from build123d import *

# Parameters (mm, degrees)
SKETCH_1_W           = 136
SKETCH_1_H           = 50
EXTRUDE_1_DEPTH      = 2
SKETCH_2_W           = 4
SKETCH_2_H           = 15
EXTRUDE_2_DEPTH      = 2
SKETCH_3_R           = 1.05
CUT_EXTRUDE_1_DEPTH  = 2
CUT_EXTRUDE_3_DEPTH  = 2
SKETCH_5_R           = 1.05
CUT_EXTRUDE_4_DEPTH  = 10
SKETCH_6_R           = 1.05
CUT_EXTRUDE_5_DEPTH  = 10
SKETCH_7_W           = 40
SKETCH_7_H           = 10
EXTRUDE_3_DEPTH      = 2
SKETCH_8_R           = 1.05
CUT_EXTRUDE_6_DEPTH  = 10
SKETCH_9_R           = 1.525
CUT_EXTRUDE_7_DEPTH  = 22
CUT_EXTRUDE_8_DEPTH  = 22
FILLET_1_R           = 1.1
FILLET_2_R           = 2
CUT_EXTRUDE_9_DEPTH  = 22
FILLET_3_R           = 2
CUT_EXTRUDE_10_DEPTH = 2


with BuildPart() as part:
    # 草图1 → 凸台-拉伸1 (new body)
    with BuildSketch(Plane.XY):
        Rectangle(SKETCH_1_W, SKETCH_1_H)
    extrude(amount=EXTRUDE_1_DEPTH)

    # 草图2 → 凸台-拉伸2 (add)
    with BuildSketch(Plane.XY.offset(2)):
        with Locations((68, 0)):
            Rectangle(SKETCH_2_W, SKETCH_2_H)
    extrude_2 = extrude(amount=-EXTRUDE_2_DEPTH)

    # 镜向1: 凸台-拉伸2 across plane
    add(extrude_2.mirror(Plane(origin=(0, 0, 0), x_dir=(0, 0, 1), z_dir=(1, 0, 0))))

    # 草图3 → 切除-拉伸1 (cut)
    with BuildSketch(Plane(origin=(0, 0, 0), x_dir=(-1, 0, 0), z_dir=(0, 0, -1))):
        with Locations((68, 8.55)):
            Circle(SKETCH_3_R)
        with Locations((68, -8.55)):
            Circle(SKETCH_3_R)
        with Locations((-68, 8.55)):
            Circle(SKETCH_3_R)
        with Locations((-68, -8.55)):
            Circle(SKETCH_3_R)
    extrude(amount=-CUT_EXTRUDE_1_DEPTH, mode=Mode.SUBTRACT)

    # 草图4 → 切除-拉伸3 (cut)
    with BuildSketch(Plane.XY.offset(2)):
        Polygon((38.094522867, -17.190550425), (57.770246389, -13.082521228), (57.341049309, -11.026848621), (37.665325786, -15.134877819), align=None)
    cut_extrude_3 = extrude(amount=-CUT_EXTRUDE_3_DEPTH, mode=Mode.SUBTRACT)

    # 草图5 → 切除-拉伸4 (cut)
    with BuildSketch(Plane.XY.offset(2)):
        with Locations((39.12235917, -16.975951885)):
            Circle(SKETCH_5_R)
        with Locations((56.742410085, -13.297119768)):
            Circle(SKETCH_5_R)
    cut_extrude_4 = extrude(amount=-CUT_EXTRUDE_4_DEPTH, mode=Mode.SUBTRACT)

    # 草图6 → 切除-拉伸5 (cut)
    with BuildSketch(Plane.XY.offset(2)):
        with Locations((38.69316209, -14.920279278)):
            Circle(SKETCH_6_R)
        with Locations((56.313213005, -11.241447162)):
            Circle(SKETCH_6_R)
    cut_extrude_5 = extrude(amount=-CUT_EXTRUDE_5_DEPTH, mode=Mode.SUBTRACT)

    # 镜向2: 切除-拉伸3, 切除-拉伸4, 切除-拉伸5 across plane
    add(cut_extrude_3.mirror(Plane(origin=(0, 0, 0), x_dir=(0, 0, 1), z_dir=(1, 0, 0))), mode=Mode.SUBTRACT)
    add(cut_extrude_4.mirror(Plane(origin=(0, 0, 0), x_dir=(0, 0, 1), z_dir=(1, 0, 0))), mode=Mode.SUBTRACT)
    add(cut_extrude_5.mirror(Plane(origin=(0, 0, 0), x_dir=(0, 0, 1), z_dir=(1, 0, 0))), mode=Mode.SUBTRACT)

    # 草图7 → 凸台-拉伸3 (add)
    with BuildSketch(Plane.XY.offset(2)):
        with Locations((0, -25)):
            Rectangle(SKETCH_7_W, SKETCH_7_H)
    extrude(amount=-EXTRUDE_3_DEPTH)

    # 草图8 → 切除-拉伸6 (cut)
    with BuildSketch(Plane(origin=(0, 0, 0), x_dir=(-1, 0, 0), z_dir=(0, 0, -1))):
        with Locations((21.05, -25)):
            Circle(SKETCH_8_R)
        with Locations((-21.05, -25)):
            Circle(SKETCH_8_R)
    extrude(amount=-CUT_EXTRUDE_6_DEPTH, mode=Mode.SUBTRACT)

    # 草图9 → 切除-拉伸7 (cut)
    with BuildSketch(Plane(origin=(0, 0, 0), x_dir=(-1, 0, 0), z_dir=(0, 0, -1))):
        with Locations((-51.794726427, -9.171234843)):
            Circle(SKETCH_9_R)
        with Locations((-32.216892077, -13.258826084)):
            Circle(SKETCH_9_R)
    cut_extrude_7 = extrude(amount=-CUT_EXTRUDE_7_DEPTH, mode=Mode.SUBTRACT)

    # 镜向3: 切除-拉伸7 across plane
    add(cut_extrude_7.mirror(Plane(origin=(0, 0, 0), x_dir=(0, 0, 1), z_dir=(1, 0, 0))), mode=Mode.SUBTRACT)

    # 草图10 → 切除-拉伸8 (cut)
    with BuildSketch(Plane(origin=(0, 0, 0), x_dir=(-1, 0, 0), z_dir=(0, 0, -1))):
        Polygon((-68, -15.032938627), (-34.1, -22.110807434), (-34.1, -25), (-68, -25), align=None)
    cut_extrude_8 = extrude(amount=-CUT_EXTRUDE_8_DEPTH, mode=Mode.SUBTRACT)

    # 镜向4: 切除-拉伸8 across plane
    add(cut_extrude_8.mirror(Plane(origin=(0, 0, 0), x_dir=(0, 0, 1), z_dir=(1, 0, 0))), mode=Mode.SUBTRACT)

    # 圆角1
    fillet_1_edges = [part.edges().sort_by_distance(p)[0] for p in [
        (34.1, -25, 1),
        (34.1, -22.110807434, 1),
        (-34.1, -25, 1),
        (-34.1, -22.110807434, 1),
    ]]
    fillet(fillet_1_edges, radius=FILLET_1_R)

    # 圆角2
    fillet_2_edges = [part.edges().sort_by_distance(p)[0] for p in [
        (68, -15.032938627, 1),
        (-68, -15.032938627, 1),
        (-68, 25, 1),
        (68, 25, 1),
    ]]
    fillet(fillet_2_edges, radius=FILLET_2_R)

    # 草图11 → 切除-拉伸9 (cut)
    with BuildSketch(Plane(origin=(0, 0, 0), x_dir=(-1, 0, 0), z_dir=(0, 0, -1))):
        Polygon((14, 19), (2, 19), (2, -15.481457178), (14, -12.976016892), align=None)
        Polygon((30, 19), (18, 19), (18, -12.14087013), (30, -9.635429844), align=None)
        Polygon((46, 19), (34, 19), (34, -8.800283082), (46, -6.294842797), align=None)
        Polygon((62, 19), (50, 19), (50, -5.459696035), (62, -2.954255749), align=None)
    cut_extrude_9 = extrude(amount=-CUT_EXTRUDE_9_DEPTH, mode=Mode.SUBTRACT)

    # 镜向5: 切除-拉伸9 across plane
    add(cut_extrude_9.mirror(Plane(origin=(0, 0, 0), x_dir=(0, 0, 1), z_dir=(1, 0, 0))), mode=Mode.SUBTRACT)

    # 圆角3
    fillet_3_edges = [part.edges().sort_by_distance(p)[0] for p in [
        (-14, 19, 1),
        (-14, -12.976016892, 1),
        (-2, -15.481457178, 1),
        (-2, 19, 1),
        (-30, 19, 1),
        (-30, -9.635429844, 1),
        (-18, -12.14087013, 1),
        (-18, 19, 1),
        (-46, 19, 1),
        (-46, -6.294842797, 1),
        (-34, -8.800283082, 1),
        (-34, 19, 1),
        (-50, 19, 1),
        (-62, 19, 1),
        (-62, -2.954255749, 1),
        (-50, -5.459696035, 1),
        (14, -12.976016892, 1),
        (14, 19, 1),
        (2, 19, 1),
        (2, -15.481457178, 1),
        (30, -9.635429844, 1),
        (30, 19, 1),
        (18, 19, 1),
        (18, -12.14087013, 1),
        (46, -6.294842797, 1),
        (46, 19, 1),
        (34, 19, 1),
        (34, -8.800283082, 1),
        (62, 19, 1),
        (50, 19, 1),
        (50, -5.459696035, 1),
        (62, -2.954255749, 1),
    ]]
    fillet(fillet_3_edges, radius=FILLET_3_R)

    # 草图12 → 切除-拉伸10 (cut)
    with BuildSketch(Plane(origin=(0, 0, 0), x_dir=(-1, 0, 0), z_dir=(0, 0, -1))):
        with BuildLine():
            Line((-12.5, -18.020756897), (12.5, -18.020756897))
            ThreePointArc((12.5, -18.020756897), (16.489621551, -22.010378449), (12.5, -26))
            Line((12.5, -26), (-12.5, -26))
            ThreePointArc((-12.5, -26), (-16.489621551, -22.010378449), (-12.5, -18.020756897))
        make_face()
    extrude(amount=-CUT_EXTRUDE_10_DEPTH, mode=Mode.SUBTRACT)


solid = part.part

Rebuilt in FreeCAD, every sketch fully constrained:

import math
import FreeCAD as App
import Part
import Sketcher
from FreeCAD import Vector
Q = App.Units.Quantity


def edges_at(feature, points):
    """Names of the edges that pass closest to the given points."""
    edges = feature.Shape.Edges
    near = lambda p: min(range(len(edges)), key=lambda i: edges[i].distToShape(Part.Vertex(*p))[0])
    return sorted({f"Edge{near(p) + 1}" for p in points})

doc = App.newDocument("Part")
params = doc.addObject("Spreadsheet::Sheet", "Params")
for row, (alias, value) in enumerate([
    ("sketch1_width", "136 mm"),
    ("sketch1_height", "50 mm"),
    ("pad1_length", "2 mm"),
    ("sketch2_width", "4 mm"),
    ("sketch2_height", "15 mm"),
    ("pad2_length", "2 mm"),
    ("sketch3_diameter", "2.1 mm"),
    ("pocket1_length", "2 mm"),
    ("sketch4_length", "20.1 mm"),
    ("sketch4_length2", "2.1 mm"),
    ("pocket2_length", "2 mm"),
    ("sketch5_diameter", "2.1 mm"),
    ("pocket3_length", "10 mm"),
    ("sketch6_diameter", "2.1 mm"),
    ("pocket4_length", "10 mm"),
    ("sketch7_width", "40 mm"),
    ("sketch7_height", "10 mm"),
    ("pad3_length", "2 mm"),
    ("sketch8_diameter", "2.1 mm"),
    ("pocket5_length", "10 mm"),
    ("sketch9_diameter", "3.05 mm"),
    ("pocket6_length", "22 mm"),
    ("sketch10_width", "33.9 mm"),
    ("pocket7_length", "22 mm"),
    ("fillet_radius", "1.1 mm"),
    ("fillet2_radius", "2 mm"),
    ("sketch11_width", "12 mm"),
    ("pocket8_length", "22 mm"),
    ("fillet3_radius", "2 mm"),
    ("sketch12_width", "25 mm"),
    ("pocket9_length", "2 mm"),
], start=1):
    params.set(f"A{row}", alias)
    params.set(f"B{row}", "=" + value)
    params.setAlias(f"B{row}", alias)

body = doc.addObject("PartDesign::Body", "Body")

sketch1 = body.newObject("Sketcher::SketchObject", "Sketch")
sketch1.AttachmentSupport = (doc.getObject("XY_Plane"), [""])
sketch1.MapMode = "FlatFace"
sketch1.addGeometry([
    Part.LineSegment(Vector(-68, 25, 0), Vector(-68, -25, 0)),
    Part.LineSegment(Vector(-68, -25, 0), Vector(68, -25, 0)),
    Part.LineSegment(Vector(68, -25, 0), Vector(68, 25, 0)),
    Part.LineSegment(Vector(68, 25, 0), Vector(-68, 25, 0)),
], False)
sketch1.addConstraint([
    Sketcher.Constraint("Coincident", 0, 2, 1, 1),
    Sketcher.Constraint("Coincident", 1, 2, 2, 1),
    Sketcher.Constraint("Coincident", 2, 2, 3, 1),
    Sketcher.Constraint("Coincident", 3, 2, 0, 1),
    Sketcher.Constraint("Vertical", 0),
    Sketcher.Constraint("Horizontal", 1),
    Sketcher.Constraint("Vertical", 2),
    Sketcher.Constraint("Horizontal", 3),
    Sketcher.Constraint("Symmetric", 0, 2, 2, 2, -1, 1),
    Sketcher.Constraint("DistanceX", 1, 1, 1, 2, Q("136 mm")),
    Sketcher.Constraint("DistanceY", 0, 2, 0, 1, Q("50 mm")),
])
sketch1.setExpression("Constraints[9]", "Params.sketch1_width")
sketch1.setExpression("Constraints[10]", "Params.sketch1_height")
pad1 = body.newObject("PartDesign::Pad", "Pad")
pad1.Profile = sketch1
pad1.setExpression("Length", "Params.pad1_length")

sketch2 = body.newObject("Sketcher::SketchObject", "Sketch001")
sketch2.AttachmentSupport = (doc.getObject("XY_Plane"), [""])
sketch2.MapMode = "FlatFace"
sketch2.AttachmentOffset = App.Placement(Vector(0, 0, 2), App.Rotation())
sketch2.addGeometry([
    Part.LineSegment(Vector(66, 7.5, 0), Vector(66, -7.5, 0)),
    Part.LineSegment(Vector(66, -7.5, 0), Vector(70, -7.5, 0)),
    Part.LineSegment(Vector(70, -7.5, 0), Vector(70, 7.5, 0)),
    Part.LineSegment(Vector(70, 7.5, 0), Vector(66, 7.5, 0)),
], False)
sketch2.addConstraint([
    Sketcher.Constraint("Coincident", 0, 2, 1, 1),
    Sketcher.Constraint("Coincident", 1, 2, 2, 1),
    Sketcher.Constraint("Coincident", 2, 2, 3, 1),
    Sketcher.Constraint("Coincident", 3, 2, 0, 1),
    Sketcher.Constraint("Vertical", 0),
    Sketcher.Constraint("Horizontal", 1),
    Sketcher.Constraint("Vertical", 2),
    Sketcher.Constraint("Horizontal", 3),
    Sketcher.Constraint("DistanceX", 1, 1, 1, 2, Q("4 mm")),
    Sketcher.Constraint("DistanceY", 0, 2, 0, 1, Q("15 mm")),
    Sketcher.Constraint("DistanceX", -1, 1, 0, 2, Q("66 mm")),
    Sketcher.Constraint("DistanceY", 0, 2, -1, 1, Q("7.5 mm")),
])
sketch2.setExpression("Constraints[8]", "Params.sketch2_width")
sketch2.setExpression("Constraints[9]", "Params.sketch2_height")
pad2 = body.newObject("PartDesign::Pad", "Pad001")
pad2.Profile = sketch2
pad2.setExpression("Length", "Params.pad2_length")
pad2.Reversed = True
doc.recompute()

mirrored = body.newObject("PartDesign::Mirrored", "Mirrored")
mirrored.Originals = [pad2]
mirrored.MirrorPlane = (doc.getObject("YZ_Plane"), [""])
body.Tip = mirrored

sketch3 = body.newObject("Sketcher::SketchObject", "Sketch002")
sketch3.AttachmentSupport = (doc.getObject("XY_Plane"), [""])
sketch3.MapMode = "FlatFace"
sketch3.addGeometry([
    Part.Circle(Vector(-68, 8.6, 0), Vector(0, 0, 1), 1.1),
    Part.Circle(Vector(-68, -8.6, 0), Vector(0, 0, 1), 1.1),
    Part.Circle(Vector(68, 8.6, 0), Vector(0, 0, 1), 1.1),
    Part.Circle(Vector(68, -8.6, 0), Vector(0, 0, 1), 1.1),
], False)
sketch3.addConstraint([
    Sketcher.Constraint("Equal", 0, 1),
    Sketcher.Constraint("Equal", 1, 2),
    Sketcher.Constraint("Equal", 2, 3),
    Sketcher.Constraint("Symmetric", 1, 3, 2, 3, -1, 1),
    Sketcher.Constraint("Symmetric", 0, 3, 3, 3, -1, 1),
    Sketcher.Constraint("Symmetric", 0, 3, 2, 3, -2),
    Sketcher.Constraint("Diameter", 0, Q("2.1 mm")),
    Sketcher.Constraint("DistanceX", 0, 3, -1, 1, Q("68 mm")),
    Sketcher.Constraint("DistanceY", 1, 3, 0, 3, Q("17.1 mm")),
])
sketch3.setExpression("Constraints[6]", "Params.sketch3_diameter")
pocket1 = body.newObject("PartDesign::Pocket", "Pocket")
pocket1.Profile = sketch3
pocket1.setExpression("Length", "Params.pocket1_length")
pocket1.Reversed = True

sketch4 = body.newObject("Sketcher::SketchObject", "Sketch003")
sketch4.AttachmentSupport = (doc.getObject("XY_Plane"), [""])
sketch4.MapMode = "FlatFace"
sketch4.AttachmentOffset = App.Placement(Vector(0, 0, 2), App.Rotation())
sketch4.addGeometry([
    Part.LineSegment(Vector(38.1, -17.2, 0), Vector(57.8, -13.1, 0)),
    Part.LineSegment(Vector(57.8, -13.1, 0), Vector(57.3, -11, 0)),
    Part.LineSegment(Vector(57.3, -11, 0), Vector(37.7, -15.1, 0)),
    Part.LineSegment(Vector(37.7, -15.1, 0), Vector(38.1, -17.2, 0)),
], False)
sketch4.addConstraint([
    Sketcher.Constraint("Coincident", 0, 2, 1, 1),
    Sketcher.Constraint("Coincident", 1, 2, 2, 1),
    Sketcher.Constraint("Coincident", 2, 2, 3, 1),
    Sketcher.Constraint("Coincident", 3, 2, 0, 1),
    Sketcher.Constraint("Perpendicular", 0, 1),
    Sketcher.Constraint("Perpendicular", 1, 2),
    Sketcher.Constraint("Perpendicular", 2, 3),
    Sketcher.Constraint("Distance", 0, Q("20.1 mm")),
    Sketcher.Constraint("Distance", 1, Q("2.1 mm")),
    Sketcher.Constraint("DistanceY", 3, 2, 1, 2, Q("6.163702 mm")),
    Sketcher.Constraint("DistanceY", 0, 2, -1, 1, Q("13.082521 mm")),
    Sketcher.Constraint("DistanceX", -1, 1, 1, 2, Q("57.341049 mm")),
])
sketch4.setExpression("Constraints[7]", "Params.sketch4_length")
sketch4.setExpression("Constraints[8]", "Params.sketch4_length2")
pocket2 = body.newObject("PartDesign::Pocket", "Pocket001")
pocket2.Profile = sketch4
pocket2.setExpression("Length", "Params.pocket2_length")

sketch5 = body.newObject("Sketcher::SketchObject", "Sketch004")
sketch5.AttachmentSupport = (doc.getObject("XY_Plane"), [""])
sketch5.MapMode = "FlatFace"
sketch5.AttachmentOffset = App.Placement(Vector(0, 0, 2), App.Rotation())
sketch5.addGeometry([
    Part.Circle(Vector(39.1, -17, 0), Vector(0, 0, 1), 1.1),
    Part.Circle(Vector(56.7, -13.3, 0), Vector(0, 0, 1), 1.1),
], False)
sketch5.addConstraint([
    Sketcher.Constraint("Equal", 0, 1),
    Sketcher.Constraint("Diameter", 0, Q("2.1 mm")),
    Sketcher.Constraint("DistanceX", -1, 1, 0, 3, Q("39.122359 mm")),
    Sketcher.Constraint("DistanceY", 0, 3, -1, 1, Q("16.975952 mm")),
    Sketcher.Constraint("DistanceX", -1, 1, 1, 3, Q("56.74241 mm")),
    Sketcher.Constraint("DistanceY", 1, 3, -1, 1, Q("13.29712 mm")),
])
sketch5.setExpression("Constraints[1]", "Params.sketch5_diameter")
pocket3 = body.newObject("PartDesign::Pocket", "Pocket002")
pocket3.Profile = sketch5
pocket3.setExpression("Length", "Params.pocket3_length")

sketch6 = body.newObject("Sketcher::SketchObject", "Sketch005")
sketch6.AttachmentSupport = (doc.getObject("XY_Plane"), [""])
sketch6.MapMode = "FlatFace"
sketch6.AttachmentOffset = App.Placement(Vector(0, 0, 2), App.Rotation())
sketch6.addGeometry([
    Part.Circle(Vector(38.7, -14.9, 0), Vector(0, 0, 1), 1.1),
    Part.Circle(Vector(56.3, -11.2, 0), Vector(0, 0, 1), 1.1),
], False)
sketch6.addConstraint([
    Sketcher.Constraint("Equal", 0, 1),
    Sketcher.Constraint("Diameter", 0, Q("2.1 mm")),
    Sketcher.Constraint("DistanceY", 0, 3, -1, 1, Q("14.920279 mm")),
    Sketcher.Constraint("DistanceX", 0, 3, 1, 3, Q("17.620051 mm")),
    Sketcher.Constraint("DistanceX", -1, 1, 0, 3, Q("38.693162 mm")),
    Sketcher.Constraint("DistanceY", 1, 3, -1, 1, Q("11.241447 mm")),
])
sketch6.setExpression("Constraints[1]", "Params.sketch6_diameter")
pocket4 = body.newObject("PartDesign::Pocket", "Pocket003")
pocket4.Profile = sketch6
pocket4.setExpression("Length", "Params.pocket4_length")
doc.recompute()

mirrored2 = body.newObject("PartDesign::Mirrored", "Mirrored001")
mirrored2.Originals = [pocket2, pocket3, pocket4]
mirrored2.MirrorPlane = (doc.getObject("YZ_Plane"), [""])
body.Tip = mirrored2

sketch7 = body.newObject("Sketcher::SketchObject", "Sketch006")
sketch7.AttachmentSupport = (doc.getObject("XY_Plane"), [""])
sketch7.MapMode = "FlatFace"
sketch7.AttachmentOffset = App.Placement(Vector(0, 0, 2), App.Rotation())
sketch7.addGeometry([
    Part.LineSegment(Vector(-20, -20, 0), Vector(-20, -30, 0)),
    Part.LineSegment(Vector(-20, -30, 0), Vector(20, -30, 0)),
    Part.LineSegment(Vector(20, -30, 0), Vector(20, -20, 0)),
    Part.LineSegment(Vector(20, -20, 0), Vector(-20, -20, 0)),
], False)
sketch7.addConstraint([
    Sketcher.Constraint("Coincident", 0, 2, 1, 1),
    Sketcher.Constraint("Coincident", 1, 2, 2, 1),
    Sketcher.Constraint("Coincident", 2, 2, 3, 1),
    Sketcher.Constraint("Coincident", 3, 2, 0, 1),
    Sketcher.Constraint("Vertical", 0),
    Sketcher.Constraint("Horizontal", 1),
    Sketcher.Constraint("Vertical", 2),
    Sketcher.Constraint("Horizontal", 3),
    Sketcher.Constraint("DistanceX", 1, 1, 1, 2, Q("40 mm")),
    Sketcher.Constraint("DistanceY", 0, 2, 0, 1, Q("10 mm")),
    Sketcher.Constraint("DistanceX", 0, 2, -1, 1, Q("20 mm")),
    Sketcher.Constraint("DistanceY", 0, 2, -1, 1, Q("30 mm")),
])
sketch7.setExpression("Constraints[8]", "Params.sketch7_width")
sketch7.setExpression("Constraints[9]", "Params.sketch7_height")
pad3 = body.newObject("PartDesign::Pad", "Pad002")
pad3.Profile = sketch7
pad3.setExpression("Length", "Params.pad3_length")
pad3.Reversed = True

sketch8 = body.newObject("Sketcher::SketchObject", "Sketch007")
sketch8.AttachmentSupport = (doc.getObject("XY_Plane"), [""])
sketch8.MapMode = "FlatFace"
sketch8.addGeometry([
    Part.Circle(Vector(-21.1, -25, 0), Vector(0, 0, 1), 1.1),
    Part.Circle(Vector(21.1, -25, 0), Vector(0, 0, 1), 1.1),
], False)
sketch8.addConstraint([
    Sketcher.Constraint("Equal", 0, 1),
    Sketcher.Constraint("Symmetric", 0, 3, 1, 3, -2),
    Sketcher.Constraint("Diameter", 0, Q("2.1 mm")),
    Sketcher.Constraint("DistanceY", 0, 3, -1, 1, Q("25 mm")),
    Sketcher.Constraint("DistanceX", 0, 3, 1, 3, Q("42.1 mm")),
])
sketch8.setExpression("Constraints[2]", "Params.sketch8_diameter")
pocket5 = body.newObject("PartDesign::Pocket", "Pocket004")
pocket5.Profile = sketch8
pocket5.setExpression("Length", "Params.pocket5_length")
pocket5.Reversed = True

sketch9 = body.newObject("Sketcher::SketchObject", "Sketch008")
sketch9.AttachmentSupport = (doc.getObject("XY_Plane"), [""])
sketch9.MapMode = "FlatFace"
sketch9.addGeometry([
    Part.Circle(Vector(51.8, -9.2, 0), Vector(0, 0, 1), 1.5),
    Part.Circle(Vector(32.2, -13.3, 0), Vector(0, 0, 1), 1.5),
], False)
sketch9.addConstraint([
    Sketcher.Constraint("Equal", 0, 1),
    Sketcher.Constraint("Diameter", 0, Q("3.05 mm")),
    Sketcher.Constraint("DistanceY", 1, 3, 0, 3, Q("4.087591 mm")),
    Sketcher.Constraint("DistanceX", -1, 1, 0, 3, Q("51.794726 mm")),
    Sketcher.Constraint("DistanceY", 0, 3, -1, 1, Q("9.171235 mm")),
    Sketcher.Constraint("DistanceX", -1, 1, 1, 3, Q("32.216892 mm")),
])
sketch9.setExpression("Constraints[1]", "Params.sketch9_diameter")
pocket6 = body.newObject("PartDesign::Pocket", "Pocket005")
pocket6.Profile = sketch9
pocket6.setExpression("Length", "Params.pocket6_length")
pocket6.Reversed = True
doc.recompute()

mirrored3 = body.newObject("PartDesign::Mirrored", "Mirrored002")
mirrored3.Originals = [pocket6]
mirrored3.MirrorPlane = (doc.getObject("YZ_Plane"), [""])
body.Tip = mirrored3

sketch10 = body.newObject("Sketcher::SketchObject", "Sketch009")
sketch10.AttachmentSupport = (doc.getObject("XY_Plane"), [""])
sketch10.MapMode = "FlatFace"
sketch10.addGeometry([
    Part.LineSegment(Vector(34.1, -22.1, 0), Vector(68, -15, 0)),
    Part.LineSegment(Vector(68, -15, 0), Vector(68, -25, 0)),
    Part.LineSegment(Vector(68, -25, 0), Vector(34.1, -25, 0)),
    Part.LineSegment(Vector(34.1, -25, 0), Vector(34.1, -22.1, 0)),
], False)
sketch10.addConstraint([
    Sketcher.Constraint("Coincident", 0, 2, 1, 1),
    Sketcher.Constraint("Coincident", 1, 2, 2, 1),
    Sketcher.Constraint("Coincident", 2, 2, 3, 1),
    Sketcher.Constraint("Coincident", 3, 2, 0, 1),
    Sketcher.Constraint("Vertical", 1),
    Sketcher.Constraint("Horizontal", 2),
    Sketcher.Constraint("Vertical", 3),
    Sketcher.Constraint("DistanceX", 2, 2, 2, 1, Q("33.9 mm")),
    Sketcher.Constraint("DistanceX", -1, 1, 0, 2, Q("68 mm")),
    Sketcher.Constraint("DistanceY", 1, 2, -1, 1, Q("25 mm")),
    Sketcher.Constraint("Distance", 0, Q("34.631001 mm")),
    Sketcher.Constraint("DistanceY", 1, 2, 1, 1, Q("9.967061 mm")),
])
sketch10.setExpression("Constraints[7]", "Params.sketch10_width")
pocket7 = body.newObject("PartDesign::Pocket", "Pocket006")
pocket7.Profile = sketch10
pocket7.setExpression("Length", "Params.pocket7_length")
pocket7.Reversed = True
doc.recompute()

mirrored4 = body.newObject("PartDesign::Mirrored", "Mirrored003")
mirrored4.Originals = [pocket7]
mirrored4.MirrorPlane = (doc.getObject("YZ_Plane"), [""])
body.Tip = mirrored4
doc.recompute()

fillet = body.newObject("PartDesign::Fillet", "Fillet")
fillet.Base = (mirrored4, edges_at(mirrored4, [
    (34.1, -25, 1),
    (34.1, -22.111, 1),
    (-34.1, -25, 1),
    (-34.1, -22.111, 1),
]))
fillet.setExpression("Radius", "Params.fillet_radius")
doc.recompute()

fillet2 = body.newObject("PartDesign::Fillet", "Fillet001")
fillet2.Base = (fillet, edges_at(fillet, [
    (68, -15.033, 1),
    (-68, -15.033, 1),
    (-68, 25, 1),
    (68, 25, 1),
]))
fillet2.setExpression("Radius", "Params.fillet2_radius")

sketch11 = body.newObject("Sketcher::SketchObject", "Sketch010")
sketch11.AttachmentSupport = (doc.getObject("XY_Plane"), [""])
sketch11.MapMode = "FlatFace"
sketch11.addGeometry([
    Part.LineSegment(Vector(-14, 19, 0), Vector(-2, 19, 0)),
    Part.LineSegment(Vector(-2, 19, 0), Vector(-2, -15, 0)),
    Part.LineSegment(Vector(-2, -15, 0), Vector(-14, -13, 0)),
    Part.LineSegment(Vector(-14, -13, 0), Vector(-14, 19, 0)),
    Part.LineSegment(Vector(-30, 19, 0), Vector(-18, 19, 0)),
    Part.LineSegment(Vector(-18, 19, 0), Vector(-18, -12, 0)),
    Part.LineSegment(Vector(-18, -12, 0), Vector(-30, -10, 0)),
    Part.LineSegment(Vector(-30, -10, 0), Vector(-30, 19, 0)),
    Part.LineSegment(Vector(-46, 19, 0), Vector(-34, 19, 0)),
    Part.LineSegment(Vector(-34, 19, 0), Vector(-34, -9, 0)),
    Part.LineSegment(Vector(-34, -9, 0), Vector(-46, -6, 0)),
    Part.LineSegment(Vector(-46, -6, 0), Vector(-46, 19, 0)),
    Part.LineSegment(Vector(-62, 19, 0), Vector(-50, 19, 0)),
    Part.LineSegment(Vector(-50, 19, 0), Vector(-50, -5, 0)),
    Part.LineSegment(Vector(-50, -5, 0), Vector(-62, -3, 0)),
    Part.LineSegment(Vector(-62, -3, 0), Vector(-62, 19, 0)),
], False)
sketch11.addConstraint([
    Sketcher.Constraint("Coincident", 0, 2, 1, 1),
    Sketcher.Constraint("Coincident", 1, 2, 2, 1),
    Sketcher.Constraint("Coincident", 2, 2, 3, 1),
    Sketcher.Constraint("Coincident", 3, 2, 0, 1),
    Sketcher.Constraint("Coincident", 4, 2, 5, 1),
    Sketcher.Constraint("Coincident", 5, 2, 6, 1),
    Sketcher.Constraint("Coincident", 6, 2, 7, 1),
    Sketcher.Constraint("Coincident", 7, 2, 4, 1),
    Sketcher.Constraint("Coincident", 8, 2, 9, 1),
    Sketcher.Constraint("Coincident", 9, 2, 10, 1),
    Sketcher.Constraint("Coincident", 10, 2, 11, 1),
    Sketcher.Constraint("Coincident", 11, 2, 8, 1),
    Sketcher.Constraint("Coincident", 12, 2, 13, 1),
    Sketcher.Constraint("Coincident", 13, 2, 14, 1),
    Sketcher.Constraint("Coincident", 14, 2, 15, 1),
    Sketcher.Constraint("Coincident", 15, 2, 12, 1),
    Sketcher.Constraint("Horizontal", 0),
    Sketcher.Constraint("Vertical", 1),
    Sketcher.Constraint("Vertical", 3),
    Sketcher.Constraint("Horizontal", 4),
    Sketcher.Constraint("Vertical", 5),
    Sketcher.Constraint("Vertical", 7),
    Sketcher.Constraint("Horizontal", 8),
    Sketcher.Constraint("Vertical", 9),
    Sketcher.Constraint("Vertical", 11),
    Sketcher.Constraint("Horizontal", 12),
    Sketcher.Constraint("Vertical", 13),
    Sketcher.Constraint("Vertical", 15),
    Sketcher.Constraint("Parallel", 2, 6),
    Sketcher.Constraint("Parallel", 6, 10),
    Sketcher.Constraint("Parallel", 10, 14),
    Sketcher.Constraint("Horizontal", 3, 2, 4, 2),
    Sketcher.Constraint("Horizontal", 7, 2, 8, 2),
    Sketcher.Constraint("Horizontal", 11, 2, 12, 2),
    Sketcher.Constraint("Equal", 0, 4),
    Sketcher.Constraint("Equal", 4, 8),
    Sketcher.Constraint("Equal", 8, 12),
    Sketcher.Constraint("DistanceX", 0, 1, 0, 2, Q("12 mm")),
    Sketcher.Constraint("DistanceX", 0, 2, -1, 1, Q("2 mm")),
    Sketcher.Constraint("DistanceY", -1, 1, 0, 2, Q("19 mm")),
    Sketcher.Constraint("DistanceX", 4, 2, -1, 1, Q("18 mm")),
    Sketcher.Constraint("DistanceX", 8, 2, -1, 1, Q("34 mm")),
    Sketcher.Constraint("DistanceX", 12, 2, -1, 1, Q("50 mm")),
    Sketcher.Constraint("DistanceY", 5, 2, 5, 1, Q("31.14087 mm")),
    Sketcher.Constraint("DistanceY", 7, 1, 7, 2, Q("28.63543 mm")),
    Sketcher.Constraint("DistanceY", 1, 2, 1, 1, Q("34.481457 mm")),
    Sketcher.Constraint("DistanceY", 9, 2, 9, 1, Q("27.800283 mm")),
    Sketcher.Constraint("DistanceY", 13, 2, 13, 1, Q("24.459696 mm")),
])
sketch11.setExpression("Constraints[37]", "Params.sketch11_width")
pocket8 = body.newObject("PartDesign::Pocket", "Pocket007")
pocket8.Profile = sketch11
pocket8.setExpression("Length", "Params.pocket8_length")
pocket8.Reversed = True
doc.recompute()

mirrored5 = body.newObject("PartDesign::Mirrored", "Mirrored004")
mirrored5.Originals = [pocket8]
mirrored5.MirrorPlane = (doc.getObject("YZ_Plane"), [""])
body.Tip = mirrored5
doc.recompute()

fillet3 = body.newObject("PartDesign::Fillet", "Fillet002")
fillet3.Base = (mirrored5, edges_at(mirrored5, [
    (-14, 19, 1),
    (-14, -12.976, 1),
    (-2, -15.481, 1),
    (-2, 19, 1),
    (-30, 19, 1),
    (-30, -9.635, 1),
    (-18, -12.141, 1),
    (-18, 19, 1),
    (-46, 19, 1),
    (-46, -6.295, 1),
    (-34, -8.8, 1),
    (-34, 19, 1),
    (-50, 19, 1),
    (-62, 19, 1),
    (-62, -2.954, 1),
    (-50, -5.46, 1),
    (14, -12.976, 1),
    (14, 19, 1),
    (2, 19, 1),
    (2, -15.481, 1),
    (30, -9.635, 1),
    (30, 19, 1),
    (18, 19, 1),
    (18, -12.141, 1),
    (46, -6.295, 1),
    (46, 19, 1),
    (34, 19, 1),
    (34, -8.8, 1),
    (62, 19, 1),
    (50, 19, 1),
    (50, -5.46, 1),
    (62, -2.954, 1),
]))
fillet3.setExpression("Radius", "Params.fillet3_radius")

sketch12 = body.newObject("Sketcher::SketchObject", "Sketch011")
sketch12.AttachmentSupport = (doc.getObject("XY_Plane"), [""])
sketch12.MapMode = "FlatFace"
sketch12.addGeometry([
    Part.LineSegment(Vector(-12.5, -18, 0), Vector(12.5, -18, 0)),
    Part.ArcOfCircle(Part.Circle(Vector(12.5, -22, 0), Vector(0, 0, 1), 4), math.radians(-90), math.radians(90)),
    Part.LineSegment(Vector(12.5, -26, 0), Vector(-12.5, -26, 0)),
    Part.ArcOfCircle(Part.Circle(Vector(-12.5, -22, 0), Vector(0, 0, 1), 4), math.radians(90), math.radians(270)),
], False)
sketch12.addConstraint([
    Sketcher.Constraint("Tangent", 0, 2, 1, 2),
    Sketcher.Constraint("Tangent", 1, 1, 2, 1),
    Sketcher.Constraint("Tangent", 2, 2, 3, 2),
    Sketcher.Constraint("Tangent", 3, 1, 0, 1),
    Sketcher.Constraint("Horizontal", 0),
    Sketcher.Constraint("Horizontal", 2),
    Sketcher.Constraint("DistanceX", 0, 1, 0, 2, Q("25 mm")),
    Sketcher.Constraint("DistanceY", 1, 1, -1, 1, Q("26 mm")),
    Sketcher.Constraint("DistanceX", -1, 1, 1, 3, Q("12.5 mm")),
    Sketcher.Constraint("Radius", 1, Q("3.989622 mm")),
])
sketch12.setExpression("Constraints[6]", "Params.sketch12_width")
pocket9 = body.newObject("PartDesign::Pocket", "Pocket008")
pocket9.Profile = sketch12
pocket9.setExpression("Length", "Params.pocket9_length")
pocket9.Reversed = True

doc.recompute()
